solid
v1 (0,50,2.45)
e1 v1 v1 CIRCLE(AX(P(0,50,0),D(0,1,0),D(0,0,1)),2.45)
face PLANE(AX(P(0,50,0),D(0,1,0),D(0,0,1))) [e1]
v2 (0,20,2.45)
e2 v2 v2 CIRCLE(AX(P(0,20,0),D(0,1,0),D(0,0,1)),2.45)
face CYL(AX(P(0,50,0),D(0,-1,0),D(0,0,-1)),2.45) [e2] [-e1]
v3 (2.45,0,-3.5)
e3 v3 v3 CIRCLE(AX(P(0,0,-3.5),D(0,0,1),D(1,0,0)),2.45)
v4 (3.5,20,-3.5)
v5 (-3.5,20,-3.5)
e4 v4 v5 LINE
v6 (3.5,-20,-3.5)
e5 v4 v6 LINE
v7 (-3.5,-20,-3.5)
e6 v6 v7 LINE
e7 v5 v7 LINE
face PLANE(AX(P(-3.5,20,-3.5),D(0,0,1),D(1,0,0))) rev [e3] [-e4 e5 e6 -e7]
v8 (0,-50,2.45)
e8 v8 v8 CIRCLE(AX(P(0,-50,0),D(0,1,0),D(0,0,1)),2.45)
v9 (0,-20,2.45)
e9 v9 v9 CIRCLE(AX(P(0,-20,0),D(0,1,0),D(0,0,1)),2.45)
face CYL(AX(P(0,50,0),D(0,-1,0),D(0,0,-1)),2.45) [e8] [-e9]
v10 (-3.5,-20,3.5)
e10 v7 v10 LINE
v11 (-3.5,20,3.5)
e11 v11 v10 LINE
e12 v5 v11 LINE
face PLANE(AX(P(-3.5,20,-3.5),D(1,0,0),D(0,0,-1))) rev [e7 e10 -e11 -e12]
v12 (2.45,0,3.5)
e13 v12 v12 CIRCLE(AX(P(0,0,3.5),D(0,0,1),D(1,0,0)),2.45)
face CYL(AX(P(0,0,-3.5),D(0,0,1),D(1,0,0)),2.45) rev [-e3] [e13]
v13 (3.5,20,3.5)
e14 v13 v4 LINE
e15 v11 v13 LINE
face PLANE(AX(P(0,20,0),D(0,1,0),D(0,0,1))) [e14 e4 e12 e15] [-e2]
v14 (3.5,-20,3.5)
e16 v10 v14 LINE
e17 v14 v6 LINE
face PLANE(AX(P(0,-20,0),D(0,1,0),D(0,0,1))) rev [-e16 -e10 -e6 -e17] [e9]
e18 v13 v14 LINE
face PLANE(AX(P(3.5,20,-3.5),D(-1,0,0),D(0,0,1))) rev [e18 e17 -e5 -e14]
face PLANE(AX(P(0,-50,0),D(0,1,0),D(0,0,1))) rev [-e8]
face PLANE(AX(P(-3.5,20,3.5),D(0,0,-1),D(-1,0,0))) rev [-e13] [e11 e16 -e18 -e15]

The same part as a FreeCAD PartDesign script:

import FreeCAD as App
import Part
import Sketcher

V = App.Vector
Q = App.Units.Quantity


def add_polygon(sketch, points):
    """Adds a closed chain of lines whose ends are joined by coincident constraints."""
    first, n = sketch.GeometryCount, len(points)
    for a, b in zip(points, points[1:] + points[:1]):
        sketch.addGeometry(Part.LineSegment(App.Vector(*a, 0), App.Vector(*b, 0)), False)
    for i in range(n):
        sketch.addConstraint(Sketcher.Constraint("Coincident", first + i, 2, first + (i + 1) % n, 1))

doc = App.newDocument("Part")
params = doc.addObject("Spreadsheet::Sheet", "Params")
for row, (alias, value) in enumerate([
    ("sketch1_diameter", "4.9 mm"),
    ("pad1_length", "50 mm"),
    ("sketch2_diameter", "4.9 mm"),
    ("pad2_length", "50 mm"),
    ("sketch3_width", "7 mm"),
    ("pad3_length", "20 mm"),
    ("sketch4_width", "7 mm"),
    ("pad4_length", "20 mm"),
    ("sketch5_diameter", "4.9 mm"),
], start=1):
    params.set(f"A{row}", alias)
    params.set(f"B{row}", "=" + value)
    params.setAlias(f"B{row}", alias)

body = doc.addObject("PartDesign::Body", "Body")

sketch1 = body.newObject("Sketcher::SketchObject", "Sketch")
sketch1.AttachmentSupport = (doc.getObject("XZ_Plane"), [""])
sketch1.MapMode = "FlatFace"
sketch1.addGeometry(Part.Circle(V(0, 0, 0), V(0, 0, 1), 2.5), False)
sketch1.addConstraint(Sketcher.Constraint("Coincident", 0, 3, -1, 1))
sketch1.addConstraint(Sketcher.Constraint("Diameter", 0, Q("4.9 mm")))
sketch1.setExpression("Constraints[1]", "Params.sketch1_diameter")
pad1 = body.newObject("PartDesign::Pad", "Pad")
pad1.Profile = sketch1
pad1.setExpression("Length", "Params.pad1_length")
pad1.Reversed = True

sketch2 = body.newObject("Sketcher::SketchObject", "Sketch001")
sketch2.AttachmentSupport = (doc.getObject("XZ_Plane"), [""])
sketch2.MapMode = "FlatFace"
sketch2.addGeometry(Part.Circle(V(0, 0, 0), V(0, 0, 1), 2.5), False)
sketch2.addConstraint(Sketcher.Constraint("Coincident", 0, 3, -1, 1))
sketch2.addConstraint(Sketcher.Constraint("Diameter", 0, Q("4.9 mm")))
sketch2.setExpression("Constraints[1]", "Params.sketch2_diameter")
pad2 = body.newObject("PartDesign::Pad", "Pad001")
pad2.Profile = sketch2
pad2.setExpression("Length", "Params.pad2_length")

sketch3 = body.newObject("Sketcher::SketchObject", "Sketch002")
sketch3.AttachmentSupport = (doc.getObject("XZ_Plane"), [""])
sketch3.MapMode = "FlatFace"
add_polygon(sketch3, [(-4, -4), (-4, 4), (4, 4), (4, -4)])
sketch3.addConstraint(Sketcher.Constraint("Vertical", 0))
sketch3.addConstraint(Sketcher.Constraint("Horizontal", 1))
sketch3.addConstraint(Sketcher.Constraint("Vertical", 2))
sketch3.addConstraint(Sketcher.Constraint("Horizontal", 3))
sketch3.addConstraint(Sketcher.Constraint("Symmetric", 0, 2, 2, 2, -1, 1))
sketch3.addConstraint(Sketcher.Constraint("Equal", 3, 0))
sketch3.addConstraint(Sketcher.Constraint("DistanceX", 1, 1, 1, 2, Q("7 mm")))
sketch3.setExpression("Constraints[10]", "Params.sketch3_width")
pad3 = body.newObject("PartDesign::Pad", "Pad002")
pad3.Profile = sketch3
pad3.setExpression("Length", "Params.pad3_length")
pad3.Reversed = True

sketch4 = body.newObject("Sketcher::SketchObject", "Sketch003")
sketch4.AttachmentSupport = (doc.getObject("XZ_Plane"), [""])
sketch4.MapMode = "FlatFace"
add_polygon(sketch4, [(-4, -4), (-4, 4), (4, 4), (4, -4)])
sketch4.addConstraint(Sketcher.Constraint("Vertical", 0))
sketch4.addConstraint(Sketcher.Constraint("Horizontal", 1))
sketch4.addConstraint(Sketcher.Constraint("Vertical", 2))
sketch4.addConstraint(Sketcher.Constraint("Horizontal", 3))
sketch4.addConstraint(Sketcher.Constraint("Symmetric", 0, 2, 2, 2, -1, 1))
sketch4.addConstraint(Sketcher.Constraint("Equal", 3, 0))
sketch4.addConstraint(Sketcher.Constraint("DistanceX", 1, 1, 1, 2, Q("7 mm")))
sketch4.setExpression("Constraints[10]", "Params.sketch4_width")
pad4 = body.newObject("PartDesign::Pad", "Pad003")
pad4.Profile = sketch4
pad4.setExpression("Length", "Params.pad4_length")

sketch5 = body.newObject("Sketcher::SketchObject", "Sketch004")
sketch5.AttachmentSupport = (doc.getObject("XY_Plane"), [""])
sketch5.MapMode = "FlatFace"
sketch5.AttachmentOffset = App.Placement(V(0, 0, 3.5), App.Rotation())
sketch5.addGeometry(Part.Circle(V(0, 0, 0), V(0, 0, 1), 2.5), False)
sketch5.addConstraint(Sketcher.Constraint("Coincident", 0, 3, -1, 1))
sketch5.addConstraint(Sketcher.Constraint("Diameter", 0, Q("4.9 mm")))
sketch5.setExpression("Constraints[1]", "Params.sketch5_diameter")
pocket1 = body.newObject("PartDesign::Pocket", "Pocket")
pocket1.Profile = sketch5
pocket1.Type = "ThroughAll"

doc.recompute()
